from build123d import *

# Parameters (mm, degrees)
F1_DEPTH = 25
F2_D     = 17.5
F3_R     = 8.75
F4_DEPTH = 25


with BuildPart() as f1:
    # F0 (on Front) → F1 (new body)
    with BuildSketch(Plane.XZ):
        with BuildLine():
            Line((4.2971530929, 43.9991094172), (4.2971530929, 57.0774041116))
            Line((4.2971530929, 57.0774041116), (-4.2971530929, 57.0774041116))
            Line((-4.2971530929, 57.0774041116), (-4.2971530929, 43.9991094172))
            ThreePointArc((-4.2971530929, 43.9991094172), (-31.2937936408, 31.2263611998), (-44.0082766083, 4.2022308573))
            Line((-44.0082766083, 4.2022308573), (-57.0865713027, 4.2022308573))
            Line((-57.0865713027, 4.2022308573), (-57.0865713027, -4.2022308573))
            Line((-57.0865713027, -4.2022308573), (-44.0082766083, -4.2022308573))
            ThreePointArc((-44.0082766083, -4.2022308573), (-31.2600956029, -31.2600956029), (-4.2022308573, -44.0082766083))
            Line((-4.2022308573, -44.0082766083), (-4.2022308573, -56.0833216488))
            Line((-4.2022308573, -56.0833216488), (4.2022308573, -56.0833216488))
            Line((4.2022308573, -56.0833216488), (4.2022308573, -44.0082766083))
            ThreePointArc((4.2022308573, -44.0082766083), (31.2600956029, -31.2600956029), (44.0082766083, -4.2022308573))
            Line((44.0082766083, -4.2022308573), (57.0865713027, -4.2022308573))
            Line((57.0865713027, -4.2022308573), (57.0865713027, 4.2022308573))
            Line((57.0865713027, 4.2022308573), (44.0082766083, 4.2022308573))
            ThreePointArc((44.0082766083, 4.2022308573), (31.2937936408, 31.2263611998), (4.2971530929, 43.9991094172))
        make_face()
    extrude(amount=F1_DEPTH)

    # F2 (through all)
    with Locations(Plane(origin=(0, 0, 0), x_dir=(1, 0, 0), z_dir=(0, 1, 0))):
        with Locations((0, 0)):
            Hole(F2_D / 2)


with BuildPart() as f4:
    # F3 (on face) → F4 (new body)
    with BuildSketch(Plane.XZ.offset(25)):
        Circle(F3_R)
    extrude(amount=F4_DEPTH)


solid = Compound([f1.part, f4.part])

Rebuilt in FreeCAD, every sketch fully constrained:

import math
import FreeCAD as App
import Part
import Sketcher

V = App.Vector

doc = App.newDocument("Part")
body = doc.addObject("PartDesign::Body", "Body")

# Sketch on XZ plane
sketch1 = body.newObject("Sketcher::SketchObject", "Sketch")
sketch1.AttachmentSupport = (doc.getObject("XZ_Plane"), [""])
sketch1.MapMode = "FlatFace"
sketch1.addGeometry(Part.LineSegment(V(4, 44, 0), V(4, 57, 0)), False)
sketch1.addGeometry(Part.LineSegment(V(4, 57, 0), V(-4, 57, 0)), False)
sketch1.addGeometry(Part.LineSegment(V(-4, 57, 0), V(-4, 44, 0)), False)
sketch1.addGeometry(Part.ArcOfCircle(Part.Circle(V(0, 0, 0), V(0, 0, 1), 44), math.radians(96), math.radians(175)), False)
sketch1.addGeometry(Part.LineSegment(V(-44, 4, 0), V(-57, 4, 0)), False)
sketch1.addGeometry(Part.LineSegment(V(-57, 4, 0), V(-57, -4, 0)), False)
sketch1.addGeometry(Part.LineSegment(V(-57, -4, 0), V(-44, -4, 0)), False)
sketch1.addGeometry(Part.ArcOfCircle(Part.Circle(V(0, 0, 0), V(0, 0, 1), 44), math.radians(-175), math.radians(-95)), False)
sketch1.addGeometry(Part.LineSegment(V(-4, -44, 0), V(-4, -56, 0)), False)
sketch1.addGeometry(Part.LineSegment(V(-4, -56, 0), V(4, -56, 0)), False)
sketch1.addGeometry(Part.LineSegment(V(4, -56, 0), V(4, -44, 0)), False)
sketch1.addGeometry(Part.ArcOfCircle(Part.Circle(V(0, 0, 0), V(0, 0, 1), 44), math.radians(-85), math.radians(-5)), False)
sketch1.addGeometry(Part.LineSegment(V(44, -4, 0), V(57, -4, 0)), False)
sketch1.addGeometry(Part.LineSegment(V(57, -4, 0), V(57, 4, 0)), False)
sketch1.addGeometry(Part.LineSegment(V(57, 4, 0), V(44, 4, 0)), False)
sketch1.addGeometry(Part.ArcOfCircle(Part.Circle(V(0, 0, 0), V(0, 0, 1), 44), math.radians(5), math.radians(84)), False)
sketch1.addConstraint(Sketcher.Constraint("Coincident", 0, 2, 1, 1))
sketch1.addConstraint(Sketcher.Constraint("Coincident", 1, 2, 2, 1))
sketch1.addConstraint(Sketcher.Constraint("Coincident", 2, 2, 3, 1))
sketch1.addConstraint(Sketcher.Constraint("Coincident", 3, 2, 4, 1))
sketch1.addConstraint(Sketcher.Constraint("Coincident", 4, 2, 5, 1))
sketch1.addConstraint(Sketcher.Constraint("Coincident", 5, 2, 6, 1))
sketch1.addConstraint(Sketcher.Constraint("Coincident", 6, 2, 7, 1))
sketch1.addConstraint(Sketcher.Constraint("Coincident", 7, 2, 8, 1))
sketch1.addConstraint(Sketcher.Constraint("Coincident", 8, 2, 9, 1))
sketch1.addConstraint(Sketcher.Constraint("Coincident", 9, 2, 10, 1))
sketch1.addConstraint(Sketcher.Constraint("Coincident", 10, 2, 11, 1))
sketch1.addConstraint(Sketcher.Constraint("Coincident", 11, 2, 12, 1))
sketch1.addConstraint(Sketcher.Constraint("Coincident", 12, 2, 13, 1))
sketch1.addConstraint(Sketcher.Constraint("Coincident", 13, 2, 14, 1))
sketch1.addConstraint(Sketcher.Constraint("Coincident", 14, 2, 15, 1))
sketch1.addConstraint(Sketcher.Constraint("Coincident", 15, 2, 0, 1))
sketch1.addConstraint(Sketcher.Constraint("Vertical", 0))
sketch1.addConstraint(Sketcher.Constraint("Horizontal", 1))
sketch1.addConstraint(Sketcher.Constraint("Vertical", 2))
sketch1.addConstraint(Sketcher.Constraint("Horizontal", 4))
sketch1.addConstraint(Sketcher.Constraint("Vertical", 5))
sketch1.addConstraint(Sketcher.Constraint("Horizontal", 6))
sketch1.addConstraint(Sketcher.Constraint("Vertical", 8))
sketch1.addConstraint(Sketcher.Constraint("Horizontal", 9))
sketch1.addConstraint(Sketcher.Constraint("Vertical", 10))
sketch1.addConstraint(Sketcher.Constraint("Horizontal", 12))
sketch1.addConstraint(Sketcher.Constraint("Vertical", 13))
sketch1.addConstraint(Sketcher.Constraint("Horizontal", 14))
sketch1.addConstraint(Sketcher.Constraint("Coincident", 3, 3, -1, 1))
sketch1.addConstraint(Sketcher.Constraint("Coincident", 7, 3, -1, 1))
sketch1.addConstraint(Sketcher.Constraint("Coincident", 11, 3, -1, 1))
sketch1.addConstraint(Sketcher.Constraint("Coincident", 15, 3, -1, 1))
sketch1.addConstraint(Sketcher.Constraint("Equal", 3, 7))
sketch1.addConstraint(Sketcher.Constraint("Equal", 7, 11))
sketch1.addConstraint(Sketcher.Constraint("Equal", 11, 15))
sketch1.addConstraint(Sketcher.Constraint("Symmetric", 4, 2, 12, 2, -1, 1))
sketch1.addConstraint(Sketcher.Constraint("Horizontal", 7, 2, 10, 2))
sketch1.addConstraint(Sketcher.Constraint("Horizontal", 6, 2, 11, 2))
sketch1.addConstraint(Sketcher.Constraint("Horizontal", 4, 2, 13, 2))
sketch1.addConstraint(Sketcher.Constraint("Horizontal", 2, 2, 15, 2))
sketch1.addConstraint(Sketcher.Constraint("Equal", 14, 0))
sketch1.addConstraint(Sketcher.Constraint("Equal", 9, 5))
sketch1.addConstraint(Sketcher.Constraint("Radius", 3, 44.208451))
sketch1.addConstraint(Sketcher.Constraint("DistanceX", 9, 1, 9, 2, 8.404462))
sketch1.addConstraint(Sketcher.Constraint("DistanceX", 1, 2, 1, 1, 8.594306))
sketch1.addConstraint(Sketcher.Constraint("DistanceX", 4, 2, 4, 1, 13.078295))
sketch1.addConstraint(Sketcher.Constraint("DistanceY", 8, 2, 8, 1, 12.075045))
pad1 = body.newObject("PartDesign::Pad", "Pad")
pad1.Profile = sketch1
pad1.Length = 25

# Sketch on XZ plane
sketch2 = body.newObject("Sketcher::SketchObject", "Sketch001")
sketch2.AttachmentSupport = (doc.getObject("XZ_Plane"), [""])
sketch2.MapMode = "FlatFace"
sketch2.addGeometry(Part.Circle(V(0, 0, 0), V(0, 0, 1), 9), False)
sketch2.addConstraint(Sketcher.Constraint("Coincident", 0, 3, -1, 1))
sketch2.addConstraint(Sketcher.Constraint("Diameter", 0, 17.5))
doc.recompute()
hole = body.newObject("PartDesign::Hole", "Hole")
hole.Profile = sketch2
hole.ThreadType = "None"
hole.Diameter = 17.5
hole.DepthType = "ThroughAll"
hole.Reversed = True
body2 = doc.addObject("PartDesign::Body", "Body001")

# Sketch on XZ plane
sketch3 = body2.newObject("Sketcher::SketchObject", "Sketch002")
sketch3.AttachmentSupport = (doc.getObject("XZ_Plane001"), [""])
sketch3.MapMode = "FlatFace"
sketch3.AttachmentOffset = App.Placement(V(0, 0, 25), App.Rotation())
sketch3.addGeometry(Part.Circle(V(0, 0, 0), V(0, 0, 1), 9), False)
sketch3.addConstraint(Sketcher.Constraint("Coincident", 0, 3, -1, 1))
sketch3.addConstraint(Sketcher.Constraint("Diameter", 0, 17.5))
pad2 = body2.newObject("PartDesign::Pad", "Pad001")
pad2.Profile = sketch3
pad2.Length = 25

doc.recompute()
